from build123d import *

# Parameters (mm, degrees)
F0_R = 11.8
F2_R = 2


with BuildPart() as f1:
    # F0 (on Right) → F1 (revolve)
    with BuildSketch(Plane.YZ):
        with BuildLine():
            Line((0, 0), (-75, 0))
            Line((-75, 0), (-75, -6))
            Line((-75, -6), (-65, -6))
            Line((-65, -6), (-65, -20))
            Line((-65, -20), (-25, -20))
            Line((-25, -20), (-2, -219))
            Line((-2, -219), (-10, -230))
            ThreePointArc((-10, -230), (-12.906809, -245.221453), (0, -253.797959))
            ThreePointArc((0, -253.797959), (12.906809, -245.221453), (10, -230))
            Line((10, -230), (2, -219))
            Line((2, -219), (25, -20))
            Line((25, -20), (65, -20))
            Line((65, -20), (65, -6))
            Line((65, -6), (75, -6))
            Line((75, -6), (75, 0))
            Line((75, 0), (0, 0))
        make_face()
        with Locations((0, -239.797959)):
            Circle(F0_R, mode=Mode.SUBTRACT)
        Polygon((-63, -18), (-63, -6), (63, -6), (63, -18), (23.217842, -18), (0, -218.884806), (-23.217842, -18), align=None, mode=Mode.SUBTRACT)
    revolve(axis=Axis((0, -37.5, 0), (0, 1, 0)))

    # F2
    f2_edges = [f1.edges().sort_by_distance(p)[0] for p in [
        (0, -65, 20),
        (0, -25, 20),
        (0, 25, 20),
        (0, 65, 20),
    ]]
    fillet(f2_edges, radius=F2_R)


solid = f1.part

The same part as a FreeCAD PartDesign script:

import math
import FreeCAD as App
import Part
import Sketcher
Q = App.Units.Quantity


def edges_at(feature, points):
    """Names of the edges that pass closest to the given points."""
    edges = feature.Shape.Edges
    near = lambda p: min(range(len(edges)), key=lambda i: edges[i].distToShape(Part.Vertex(*p))[0])
    return sorted({f"Edge{near(p) + 1}" for p in points})

doc = App.newDocument("Part")
body = doc.addObject("PartDesign::Body", "Body")

sketch1 = body.newObject("Sketcher::SketchObject", "Sketch")
sketch1.AttachmentSupport = (doc.getObject("YZ_Plane"), [""])
sketch1.MapMode = "FlatFace"
sketch1.addGeometry(Part.LineSegment(App.Vector(-75, 0, 0), App.Vector(-75, -6, 0)), False)
sketch1.addGeometry(Part.LineSegment(App.Vector(-75, -6, 0), App.Vector(-65, -6, 0)), False)
sketch1.addGeometry(Part.LineSegment(App.Vector(-65, -6, 0), App.Vector(-65, -20, 0)), False)
sketch1.addGeometry(Part.LineSegment(App.Vector(-65, -20, 0), App.Vector(-25, -20, 0)), False)
sketch1.addGeometry(Part.LineSegment(App.Vector(-25, -20, 0), App.Vector(-2, -219, 0)), False)
sketch1.addGeometry(Part.LineSegment(App.Vector(-2, -219, 0), App.Vector(-10, -230, 0)), False)
sketch1.addGeometry(Part.ArcOfCircle(Part.Circle(App.Vector(0, -239.797959, 0), App.Vector(0, 0, 1), 14), math.radians(135.58469), math.radians(270.000001)), False)
sketch1.addGeometry(Part.ArcOfCircle(Part.Circle(App.Vector(0, -239.797959, 0), App.Vector(0, 0, 1), 14), math.radians(-90.000001), math.radians(44.41531)), False)
sketch1.addGeometry(Part.LineSegment(App.Vector(10, -230, 0), App.Vector(2, -219, 0)), False)
sketch1.addGeometry(Part.LineSegment(App.Vector(2, -219, 0), App.Vector(25, -20, 0)), False)
sketch1.addGeometry(Part.LineSegment(App.Vector(25, -20, 0), App.Vector(65, -20, 0)), False)
sketch1.addGeometry(Part.LineSegment(App.Vector(65, -20, 0), App.Vector(65, -6, 0)), False)
sketch1.addGeometry(Part.LineSegment(App.Vector(65, -6, 0), App.Vector(75, -6, 0)), False)
sketch1.addGeometry(Part.LineSegment(App.Vector(75, -6, 0), App.Vector(75, 0, 0)), False)
sketch1.addGeometry(Part.LineSegment(App.Vector(75, 0, 0), App.Vector(-75, 0, 0)), False)
sketch1.addGeometry(Part.Circle(App.Vector(0, -239.797959, 0), App.Vector(0, 0, 1), 11.8), False)
sketch1.addGeometry(Part.LineSegment(App.Vector(-23.217842, -18, 0), App.Vector(-63, -18, 0)), False)
sketch1.addGeometry(Part.LineSegment(App.Vector(-63, -18, 0), App.Vector(-63, -6, 0)), False)
sketch1.addGeometry(Part.LineSegment(App.Vector(-63, -6, 0), App.Vector(63, -6, 0)), False)
sketch1.addGeometry(Part.LineSegment(App.Vector(63, -6, 0), App.Vector(63, -18, 0)), False)
sketch1.addGeometry(Part.LineSegment(App.Vector(63, -18, 0), App.Vector(23.217842, -18, 0)), False)
sketch1.addGeometry(Part.LineSegment(App.Vector(23.217842, -18, 0), App.Vector(0, -218.884806, 0)), False)
sketch1.addGeometry(Part.LineSegment(App.Vector(0, -218.884806, 0), App.Vector(-23.217842, -18, 0)), False)
sketch1.addConstraint(Sketcher.Constraint("Coincident", 0, 2, 1, 1))
sketch1.addConstraint(Sketcher.Constraint("Coincident", 1, 2, 2, 1))
sketch1.addConstraint(Sketcher.Constraint("Coincident", 2, 2, 3, 1))
sketch1.addConstraint(Sketcher.Constraint("Coincident", 3, 2, 4, 1))
sketch1.addConstraint(Sketcher.Constraint("Coincident", 4, 2, 5, 1))
sketch1.addConstraint(Sketcher.Constraint("Coincident", 5, 2, 6, 1))
sketch1.addConstraint(Sketcher.Constraint("Tangent", 6, 2, 7, 1))
sketch1.addConstraint(Sketcher.Constraint("Coincident", 7, 2, 8, 1))
sketch1.addConstraint(Sketcher.Constraint("Coincident", 8, 2, 9, 1))
sketch1.addConstraint(Sketcher.Constraint("Coincident", 9, 2, 10, 1))
sketch1.addConstraint(Sketcher.Constraint("Coincident", 10, 2, 11, 1))
sketch1.addConstraint(Sketcher.Constraint("Coincident", 11, 2, 12, 1))
sketch1.addConstraint(Sketcher.Constraint("Coincident", 12, 2, 13, 1))
sketch1.addConstraint(Sketcher.Constraint("Coincident", 13, 2, 14, 1))
sketch1.addConstraint(Sketcher.Constraint("Coincident", 14, 2, 0, 1))
sketch1.addConstraint(Sketcher.Constraint("Coincident", 16, 2, 17, 1))
sketch1.addConstraint(Sketcher.Constraint("Coincident", 17, 2, 18, 1))
sketch1.addConstraint(Sketcher.Constraint("Coincident", 18, 2, 19, 1))
sketch1.addConstraint(Sketcher.Constraint("Coincident", 19, 2, 20, 1))
sketch1.addConstraint(Sketcher.Constraint("Coincident", 20, 2, 21, 1))
sketch1.addConstraint(Sketcher.Constraint("Coincident", 21, 2, 22, 1))
sketch1.addConstraint(Sketcher.Constraint("Coincident", 22, 2, 16, 1))
sketch1.addConstraint(Sketcher.Constraint("Vertical", 0))
sketch1.addConstraint(Sketcher.Constraint("Horizontal", 1))
sketch1.addConstraint(Sketcher.Constraint("Vertical", 2))
sketch1.addConstraint(Sketcher.Constraint("Horizontal", 3))
sketch1.addConstraint(Sketcher.Constraint("Horizontal", 10))
sketch1.addConstraint(Sketcher.Constraint("Vertical", 11))
sketch1.addConstraint(Sketcher.Constraint("Horizontal", 12))
sketch1.addConstraint(Sketcher.Constraint("Vertical", 13))
sketch1.addConstraint(Sketcher.Constraint("Horizontal", 14))
sketch1.addConstraint(Sketcher.Constraint("Horizontal", 16))
sketch1.addConstraint(Sketcher.Constraint("Vertical", 17))
sketch1.addConstraint(Sketcher.Constraint("Horizontal", 18))
sketch1.addConstraint(Sketcher.Constraint("Vertical", 19))
sketch1.addConstraint(Sketcher.Constraint("Horizontal", 20))
sketch1.addConstraint(Sketcher.Constraint("Coincident", 15, 3, 6, 3))
sketch1.addConstraint(Sketcher.Constraint("Equal", 6, 7))
sketch1.addConstraint(Sketcher.Constraint("Symmetric", 13, 2, 14, 2, -1, 1))
sketch1.addConstraint(Sketcher.Constraint("Symmetric", 5, 2, 7, 2, -2))
sketch1.addConstraint(Sketcher.Constraint("Symmetric", 4, 2, 8, 2, -2))
sketch1.addConstraint(Sketcher.Constraint("Symmetric", 3, 2, 9, 2, -2))
sketch1.addConstraint(Sketcher.Constraint("Symmetric", 1, 2, 11, 2, -2))
sketch1.addConstraint(Sketcher.Constraint("Symmetric", 16, 2, 19, 2, -2))
sketch1.addConstraint(Sketcher.Constraint("PointOnObject", 6, 2, -2))
sketch1.addConstraint(Sketcher.Constraint("PointOnObject", 21, 2, -2))
sketch1.addConstraint(Sketcher.Constraint("Parallel", 9, 21))
sketch1.addConstraint(Sketcher.Constraint("Parallel", 4, 22))
sketch1.addConstraint(Sketcher.Constraint("Horizontal", 12, 2, 17, 2))
sketch1.addConstraint(Sketcher.Constraint("Radius", 6, Q("14 mm")))
sketch1.addConstraint(Sketcher.Constraint("Diameter", 15, Q("23.6 mm")))
sketch1.addConstraint(Sketcher.Constraint("DistanceX", 1, 1, 1, 2, Q("10 mm")))
sketch1.addConstraint(Sketcher.Constraint("DistanceX", 3, 1, 3, 2, Q("40 mm")))
sketch1.addConstraint(Sketcher.Constraint("DistanceX", 14, 2, 14, 1, Q("150 mm")))
sketch1.addConstraint(Sketcher.Constraint("DistanceX", 18, 1, 18, 2, Q("126 mm")))
sketch1.addConstraint(Sketcher.Constraint("DistanceY", 0, 2, 0, 1, Q("6 mm")))
sketch1.addConstraint(Sketcher.Constraint("DistanceY", 2, 2, 2, 1, Q("14 mm")))
sketch1.addConstraint(Sketcher.Constraint("DistanceY", 17, 1, 17, 2, Q("12 mm")))
sketch1.addConstraint(Sketcher.Constraint("DistanceX", 4, 2, -1, 1, Q("2 mm")))
sketch1.addConstraint(Sketcher.Constraint("DistanceY", 4, 2, -1, 1, Q("219 mm")))
sketch1.addConstraint(Sketcher.Constraint("DistanceX", 5, 2, -1, 1, Q("10 mm")))
sketch1.addConstraint(Sketcher.Constraint("DistanceY", 5, 2, -1, 1, Q("230 mm")))
sketch1.addConstraint(Sketcher.Constraint("Distance", 21, Q("202.222089 mm")))
revolution = body.newObject("PartDesign::Revolution", "Revolution")
revolution.Profile = sketch1
revolution.ReferenceAxis = (sketch1, ["H_Axis"])
revolution.Angle = 360
doc.recompute()

fillet = body.newObject("PartDesign::Fillet", "Fillet")
fillet.Base = (revolution, edges_at(revolution, [
    (0, -65, 20),
    (0, -25, 20),
    (0, 25, 20),
    (0, 65, 20),
]))
fillet.Radius = 2

doc.recompute()
